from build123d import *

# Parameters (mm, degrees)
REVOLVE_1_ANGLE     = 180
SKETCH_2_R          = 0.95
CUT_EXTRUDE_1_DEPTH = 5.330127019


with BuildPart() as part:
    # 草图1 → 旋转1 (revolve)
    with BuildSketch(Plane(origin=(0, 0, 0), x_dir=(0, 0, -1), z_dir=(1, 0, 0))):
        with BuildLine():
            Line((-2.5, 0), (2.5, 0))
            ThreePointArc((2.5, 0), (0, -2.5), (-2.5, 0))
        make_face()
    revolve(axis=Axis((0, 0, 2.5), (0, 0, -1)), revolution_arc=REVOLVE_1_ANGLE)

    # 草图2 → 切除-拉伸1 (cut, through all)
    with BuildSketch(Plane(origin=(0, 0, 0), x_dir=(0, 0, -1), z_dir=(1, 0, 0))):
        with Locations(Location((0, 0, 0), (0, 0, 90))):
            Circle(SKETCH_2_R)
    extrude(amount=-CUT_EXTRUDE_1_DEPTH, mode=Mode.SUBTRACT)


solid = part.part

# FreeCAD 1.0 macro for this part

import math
import FreeCAD as App
import Part
import Sketcher
from FreeCAD import Vector
Q = App.Units.Quantity

doc = App.newDocument("Part")
body = doc.addObject("PartDesign::Body", "Body")

sketch1 = doc.addObject("Sketcher::SketchObject", "Sketch")
body.addObject(sketch1)
sketch1.AttachmentSupport = (doc.YZ_Plane, [""])
sketch1.MapMode = "FlatFace"
sketch1.addGeometry([
    Part.LineSegment(Vector(0, -2.5, 0), Vector(0, 2.5, 0)),
    Part.ArcOfCircle(Part.Circle(Vector(0, 0, 0), Vector(0, 0, 1), 2.5), math.radians(90), math.radians(270)),
], False)
sketch1.addConstraint([
    Sketcher.Constraint("Coincident", 0, 1, 1, 2),
    Sketcher.Constraint("Coincident", 1, 1, 0, 2),
    Sketcher.Constraint("Vertical", 0),
    Sketcher.Constraint("Coincident", 1, 3, -1, 1),
    Sketcher.Constraint("PointOnObject", 0, 1, -2),
    Sketcher.Constraint("Radius", 1, Q("2.5 mm")),
])
revolution = doc.addObject("PartDesign::Revolution", "Revolution")
body.addObject(revolution)
revolution.Profile = sketch1
revolution.ReferenceAxis = (sketch1, ["V_Axis"])
revolution.Angle = 180
revolution.Reversed = True

sketch2 = doc.addObject("Sketcher::SketchObject", "Sketch001")
body.addObject(sketch2)
sketch2.AttachmentSupport = (doc.YZ_Plane, [""])
sketch2.MapMode = "FlatFace"
sketch2.addGeometry(Part.Circle(Vector(0, 0, 0), Vector(0, 0, 1), 0.95), False)
sketch2.addConstraint([
    Sketcher.Constraint("Coincident", 0, 3, -1, 1),
    Sketcher.Constraint("Diameter", 0, Q("1.9 mm")),
])
pocket1 = doc.addObject("PartDesign::Pocket", "Pocket")
body.addObject(pocket1)
pocket1.Profile = sketch2
pocket1.Type = "ThroughAll"

doc.recompute()
